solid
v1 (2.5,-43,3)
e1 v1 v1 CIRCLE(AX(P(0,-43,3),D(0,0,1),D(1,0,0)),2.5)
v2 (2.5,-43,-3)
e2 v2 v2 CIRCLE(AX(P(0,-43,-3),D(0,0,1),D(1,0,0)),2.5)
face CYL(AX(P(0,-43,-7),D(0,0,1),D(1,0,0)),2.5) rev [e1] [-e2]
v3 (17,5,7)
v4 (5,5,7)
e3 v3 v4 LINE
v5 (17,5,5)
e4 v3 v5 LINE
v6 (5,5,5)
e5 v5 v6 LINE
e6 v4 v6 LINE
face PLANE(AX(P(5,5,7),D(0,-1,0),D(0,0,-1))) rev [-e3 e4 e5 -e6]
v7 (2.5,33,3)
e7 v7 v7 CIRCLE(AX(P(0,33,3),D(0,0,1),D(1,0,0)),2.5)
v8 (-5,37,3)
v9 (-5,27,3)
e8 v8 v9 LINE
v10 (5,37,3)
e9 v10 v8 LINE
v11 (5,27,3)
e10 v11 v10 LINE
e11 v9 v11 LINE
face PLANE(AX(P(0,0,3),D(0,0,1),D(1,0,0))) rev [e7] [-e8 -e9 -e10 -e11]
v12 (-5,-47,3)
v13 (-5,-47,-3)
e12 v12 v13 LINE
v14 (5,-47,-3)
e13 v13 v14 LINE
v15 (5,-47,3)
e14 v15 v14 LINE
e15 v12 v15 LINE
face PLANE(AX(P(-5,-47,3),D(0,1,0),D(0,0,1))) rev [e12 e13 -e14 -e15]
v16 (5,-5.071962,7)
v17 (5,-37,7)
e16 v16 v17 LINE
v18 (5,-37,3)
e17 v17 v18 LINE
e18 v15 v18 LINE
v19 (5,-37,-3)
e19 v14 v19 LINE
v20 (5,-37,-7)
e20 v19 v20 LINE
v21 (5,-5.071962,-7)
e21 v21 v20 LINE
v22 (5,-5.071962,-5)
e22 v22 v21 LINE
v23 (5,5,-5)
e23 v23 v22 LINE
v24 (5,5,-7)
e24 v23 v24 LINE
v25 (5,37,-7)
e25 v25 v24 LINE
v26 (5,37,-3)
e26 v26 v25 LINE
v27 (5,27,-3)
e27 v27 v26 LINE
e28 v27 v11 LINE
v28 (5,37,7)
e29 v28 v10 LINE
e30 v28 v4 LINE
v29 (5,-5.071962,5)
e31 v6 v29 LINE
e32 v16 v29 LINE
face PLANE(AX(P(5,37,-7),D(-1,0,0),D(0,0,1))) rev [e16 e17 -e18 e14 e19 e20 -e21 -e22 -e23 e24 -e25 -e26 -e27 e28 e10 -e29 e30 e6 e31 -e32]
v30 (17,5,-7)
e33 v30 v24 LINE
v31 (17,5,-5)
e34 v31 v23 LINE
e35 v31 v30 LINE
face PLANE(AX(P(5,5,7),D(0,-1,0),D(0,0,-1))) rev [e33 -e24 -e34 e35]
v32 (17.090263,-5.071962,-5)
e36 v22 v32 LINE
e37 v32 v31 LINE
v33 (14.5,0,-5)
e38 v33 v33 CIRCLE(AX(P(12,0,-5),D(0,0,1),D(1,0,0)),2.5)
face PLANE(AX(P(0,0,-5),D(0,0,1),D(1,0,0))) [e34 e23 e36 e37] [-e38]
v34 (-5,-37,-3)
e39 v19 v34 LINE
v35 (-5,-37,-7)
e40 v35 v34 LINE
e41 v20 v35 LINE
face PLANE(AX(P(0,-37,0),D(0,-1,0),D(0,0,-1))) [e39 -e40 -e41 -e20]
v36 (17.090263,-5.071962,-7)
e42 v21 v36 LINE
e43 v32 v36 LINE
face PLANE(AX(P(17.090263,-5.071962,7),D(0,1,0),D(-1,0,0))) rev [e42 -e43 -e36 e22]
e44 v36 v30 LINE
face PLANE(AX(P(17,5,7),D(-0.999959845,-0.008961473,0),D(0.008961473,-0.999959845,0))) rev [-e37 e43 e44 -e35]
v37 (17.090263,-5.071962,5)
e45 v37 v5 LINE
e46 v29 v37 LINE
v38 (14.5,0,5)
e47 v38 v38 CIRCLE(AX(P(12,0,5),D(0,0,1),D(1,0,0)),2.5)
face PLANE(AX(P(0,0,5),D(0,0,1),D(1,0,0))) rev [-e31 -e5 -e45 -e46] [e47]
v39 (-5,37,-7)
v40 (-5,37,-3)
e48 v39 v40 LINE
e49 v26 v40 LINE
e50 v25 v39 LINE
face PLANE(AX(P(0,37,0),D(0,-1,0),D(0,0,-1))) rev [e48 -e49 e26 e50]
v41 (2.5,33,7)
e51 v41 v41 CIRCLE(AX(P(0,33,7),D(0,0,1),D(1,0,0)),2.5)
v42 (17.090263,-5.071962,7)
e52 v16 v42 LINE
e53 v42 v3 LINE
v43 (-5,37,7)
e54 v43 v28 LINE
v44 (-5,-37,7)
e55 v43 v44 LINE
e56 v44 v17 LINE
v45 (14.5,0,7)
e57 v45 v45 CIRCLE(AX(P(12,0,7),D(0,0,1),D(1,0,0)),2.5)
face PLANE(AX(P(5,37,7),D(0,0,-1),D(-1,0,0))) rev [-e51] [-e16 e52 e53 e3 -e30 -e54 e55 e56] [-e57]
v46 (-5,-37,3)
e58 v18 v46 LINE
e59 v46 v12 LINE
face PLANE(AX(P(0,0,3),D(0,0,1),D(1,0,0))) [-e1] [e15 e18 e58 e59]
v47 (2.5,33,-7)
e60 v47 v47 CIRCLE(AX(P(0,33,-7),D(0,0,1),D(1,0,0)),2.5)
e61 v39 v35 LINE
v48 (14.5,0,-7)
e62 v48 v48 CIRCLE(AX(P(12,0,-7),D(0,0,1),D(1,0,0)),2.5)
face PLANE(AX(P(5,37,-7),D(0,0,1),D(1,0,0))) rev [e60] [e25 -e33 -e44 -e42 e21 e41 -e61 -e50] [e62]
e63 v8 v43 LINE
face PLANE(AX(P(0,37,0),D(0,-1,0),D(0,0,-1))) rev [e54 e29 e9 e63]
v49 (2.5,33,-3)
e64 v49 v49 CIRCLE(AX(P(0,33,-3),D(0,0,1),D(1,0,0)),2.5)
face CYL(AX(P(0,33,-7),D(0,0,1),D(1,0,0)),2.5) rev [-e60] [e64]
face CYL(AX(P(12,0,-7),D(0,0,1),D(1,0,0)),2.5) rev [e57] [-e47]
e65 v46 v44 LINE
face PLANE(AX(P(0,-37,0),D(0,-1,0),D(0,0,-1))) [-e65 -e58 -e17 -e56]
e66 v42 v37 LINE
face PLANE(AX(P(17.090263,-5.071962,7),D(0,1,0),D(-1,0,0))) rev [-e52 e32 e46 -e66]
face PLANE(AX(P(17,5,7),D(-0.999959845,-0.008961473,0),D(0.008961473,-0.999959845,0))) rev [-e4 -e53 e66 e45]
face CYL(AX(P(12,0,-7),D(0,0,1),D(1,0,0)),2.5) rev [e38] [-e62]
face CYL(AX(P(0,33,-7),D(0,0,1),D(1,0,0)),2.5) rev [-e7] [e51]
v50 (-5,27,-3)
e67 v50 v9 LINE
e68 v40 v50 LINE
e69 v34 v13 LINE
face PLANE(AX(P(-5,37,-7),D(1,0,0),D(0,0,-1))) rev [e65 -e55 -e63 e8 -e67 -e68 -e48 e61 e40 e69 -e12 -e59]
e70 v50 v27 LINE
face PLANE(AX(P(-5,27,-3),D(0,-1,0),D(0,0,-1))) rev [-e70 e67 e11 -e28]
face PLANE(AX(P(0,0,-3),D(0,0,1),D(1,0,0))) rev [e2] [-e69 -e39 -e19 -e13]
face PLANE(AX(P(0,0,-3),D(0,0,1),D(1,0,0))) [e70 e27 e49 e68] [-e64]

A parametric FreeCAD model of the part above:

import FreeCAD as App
import Part
import Sketcher
from FreeCAD import Vector


def add_polygon(sketch, points):
    """Adds a closed chain of lines whose ends are joined by coincident constraints."""
    first, n = sketch.GeometryCount, len(points)
    for a, b in zip(points, points[1:] + points[:1]):
        sketch.addGeometry(Part.LineSegment(App.Vector(*a, 0), App.Vector(*b, 0)), False)
    for i in range(n):
        sketch.addConstraint(Sketcher.Constraint("Coincident", first + i, 2, first + (i + 1) % n, 1))

doc = App.newDocument("Part")
body = doc.addObject("PartDesign::Body", "Body")

sketch1 = body.newObject("Sketcher::SketchObject", "Sketch")
sketch1.AttachmentSupport = (doc.getObject("XZ_Plane"), [""])
sketch1.MapMode = "FlatFace"
add_polygon(sketch1, [(-5, -7), (-5, 7), (5, 7), (5, -7)])
sketch1.addConstraint([
    Sketcher.Constraint("Vertical", 0),
    Sketcher.Constraint("Horizontal", 1),
    Sketcher.Constraint("Vertical", 2),
    Sketcher.Constraint("Horizontal", 3),
    Sketcher.Constraint("Symmetric", 0, 2, 2, 2, -1, 1),
    Sketcher.Constraint("DistanceX", 1, 1, 1, 2, 10.0),
    Sketcher.Constraint("DistanceY", 0, 1, 0, 2, 14.0),
])
pad1 = body.newObject("PartDesign::Pad", "Pad")
pad1.Profile = sketch1
pad1.Length = 74
pad1.Midplane = True

sketch2 = body.newObject("Sketcher::SketchObject", "Sketch001")
sketch2.AttachmentSupport = (doc.getObject("XY_Plane"), [""])
sketch2.MapMode = "FlatFace"
add_polygon(sketch2, [(17, 5), (5, 5), (5, -5.071962), (17.090263, -5.071962)])
sketch2.addConstraint([
    Sketcher.Constraint("Horizontal", 0),
    Sketcher.Constraint("Vertical", 1),
    Sketcher.Constraint("Horizontal", 2),
    Sketcher.Constraint("DistanceX", 0, 2, 0, 1, 12.0),
    Sketcher.Constraint("DistanceX", -1, 1, 0, 2, 5.0),
    Sketcher.Constraint("DistanceY", -1, 1, 0, 2, 5.0),
    Sketcher.Constraint("DistanceX", 2, 1, 2, 2, 12.090263),
    Sketcher.Constraint("DistanceY", 1, 2, 1, 1, 10.071962),
])
pad2 = body.newObject("PartDesign::Pad", "Pad001")
pad2.Profile = sketch2
pad2.Length = 14
pad2.Midplane = True

sketch3 = body.newObject("Sketcher::SketchObject", "Sketch002")
sketch3.AttachmentSupport = (doc.getObject("XY_Plane"), [""])
sketch3.MapMode = "FlatFace"
add_polygon(sketch3, [(5, 5), (5, -5.071962), (17.090263, -5.071962), (17.090263, 5)])
sketch3.addConstraint([
    Sketcher.Constraint("Vertical", 0),
    Sketcher.Constraint("Horizontal", 1),
    Sketcher.Constraint("Vertical", 2),
    Sketcher.Constraint("Horizontal", 3),
    Sketcher.Constraint("DistanceX", -1, 1, 0, 2, 5.0),
    Sketcher.Constraint("DistanceY", -1, 1, 2, 2, 5.0),
    Sketcher.Constraint("DistanceX", 1, 1, 1, 2, 12.090263),
    Sketcher.Constraint("DistanceY", 0, 2, 0, 1, 10.071962),
])
pocket1 = body.newObject("PartDesign::Pocket", "Pocket")
pocket1.Profile = sketch3
pocket1.Length = 10
pocket1.Midplane = True

sketch4 = body.newObject("Sketcher::SketchObject", "Sketch003")
sketch4.AttachmentSupport = (doc.getObject("XY_Plane"), [""])
sketch4.MapMode = "FlatFace"
sketch4.addGeometry(Part.Circle(Vector(12, 0, 0), Vector(0, 0, 1), 2.5), False)
sketch4.addConstraint([
    Sketcher.Constraint("PointOnObject", 0, 3, -1),
    Sketcher.Constraint("Diameter", 0, 5.0),
    Sketcher.Constraint("DistanceX", -1, 1, 0, 3, 12.0),
])
pocket2 = body.newObject("PartDesign::Pocket", "Pocket001")
pocket2.Profile = sketch4
pocket2.Type = "ThroughAll"
pocket2.Midplane = True

sketch5 = body.newObject("Sketcher::SketchObject", "Sketch004")
sketch5.AttachmentSupport = (doc.getObject("XY_Plane"), [""])
sketch5.MapMode = "FlatFace"
add_polygon(sketch5, [(-5, 37), (-5, 27), (5, 27), (5, 37)])
sketch5.addConstraint([
    Sketcher.Constraint("Vertical", 0),
    Sketcher.Constraint("Horizontal", 1),
    Sketcher.Constraint("Vertical", 2),
    Sketcher.Constraint("Horizontal", 3),
    Sketcher.Constraint("Equal", 3, 0),
    Sketcher.Constraint("DistanceX", 1, 1, 1, 2, 10.0),
    Sketcher.Constraint("DistanceX", 0, 2, -1, 1, 5.0),
    Sketcher.Constraint("DistanceY", -1, 1, 0, 2, 27.0),
])
pocket3 = body.newObject("PartDesign::Pocket", "Pocket002")
pocket3.Profile = sketch5
pocket3.Length = 6
pocket3.Midplane = True

sketch6 = body.newObject("Sketcher::SketchObject", "Sketch005")
sketch6.AttachmentSupport = (doc.getObject("XY_Plane"), [""])
sketch6.MapMode = "FlatFace"
add_polygon(sketch6, [(-5, -37), (-5, -47), (5, -47), (5, -37)])
sketch6.addConstraint([
    Sketcher.Constraint("Vertical", 0),
    Sketcher.Constraint("Horizontal", 1),
    Sketcher.Constraint("Vertical", 2),
    Sketcher.Constraint("Horizontal", 3),
    Sketcher.Constraint("Equal", 3, 0),
    Sketcher.Constraint("DistanceX", 1, 1, 1, 2, 10.0),
    Sketcher.Constraint("DistanceX", 0, 2, -1, 1, 5.0),
    Sketcher.Constraint("DistanceY", 0, 2, -1, 1, 47.0),
])
pad3 = body.newObject("PartDesign::Pad", "Pad002")
pad3.Profile = sketch6
pad3.Length = 6
pad3.Midplane = True

sketch7 = body.newObject("Sketcher::SketchObject", "Sketch006")
sketch7.AttachmentSupport = (doc.getObject("XY_Plane"), [""])
sketch7.MapMode = "FlatFace"
sketch7.addGeometry(Part.Circle(Vector(0, 33, 0), Vector(0, 0, 1), 2.5), False)
sketch7.addConstraint([
    Sketcher.Constraint("PointOnObject", 0, 3, -2),
    Sketcher.Constraint("Diameter", 0, 5.0),
    Sketcher.Constraint("DistanceY", -1, 1, 0, 3, 33.0),
])
pocket4 = body.newObject("PartDesign::Pocket", "Pocket003")
pocket4.Profile = sketch7
pocket4.Type = "ThroughAll"
pocket4.Midplane = True

sketch8 = body.newObject("Sketcher::SketchObject", "Sketch007")
sketch8.AttachmentSupport = (doc.getObject("XY_Plane"), [""])
sketch8.MapMode = "FlatFace"
sketch8.addGeometry(Part.Circle(Vector(0, -43, 0), Vector(0, 0, 1), 2.5), False)
sketch8.addConstraint([
    Sketcher.Constraint("PointOnObject", 0, 3, -2),
    Sketcher.Constraint("Diameter", 0, 5.0),
    Sketcher.Constraint("DistanceY", 0, 3, -1, 1, 43.0),
])
pocket5 = body.newObject("PartDesign::Pocket", "Pocket004")
pocket5.Profile = sketch8
pocket5.Type = "ThroughAll"
pocket5.Midplane = True

doc.recompute()
